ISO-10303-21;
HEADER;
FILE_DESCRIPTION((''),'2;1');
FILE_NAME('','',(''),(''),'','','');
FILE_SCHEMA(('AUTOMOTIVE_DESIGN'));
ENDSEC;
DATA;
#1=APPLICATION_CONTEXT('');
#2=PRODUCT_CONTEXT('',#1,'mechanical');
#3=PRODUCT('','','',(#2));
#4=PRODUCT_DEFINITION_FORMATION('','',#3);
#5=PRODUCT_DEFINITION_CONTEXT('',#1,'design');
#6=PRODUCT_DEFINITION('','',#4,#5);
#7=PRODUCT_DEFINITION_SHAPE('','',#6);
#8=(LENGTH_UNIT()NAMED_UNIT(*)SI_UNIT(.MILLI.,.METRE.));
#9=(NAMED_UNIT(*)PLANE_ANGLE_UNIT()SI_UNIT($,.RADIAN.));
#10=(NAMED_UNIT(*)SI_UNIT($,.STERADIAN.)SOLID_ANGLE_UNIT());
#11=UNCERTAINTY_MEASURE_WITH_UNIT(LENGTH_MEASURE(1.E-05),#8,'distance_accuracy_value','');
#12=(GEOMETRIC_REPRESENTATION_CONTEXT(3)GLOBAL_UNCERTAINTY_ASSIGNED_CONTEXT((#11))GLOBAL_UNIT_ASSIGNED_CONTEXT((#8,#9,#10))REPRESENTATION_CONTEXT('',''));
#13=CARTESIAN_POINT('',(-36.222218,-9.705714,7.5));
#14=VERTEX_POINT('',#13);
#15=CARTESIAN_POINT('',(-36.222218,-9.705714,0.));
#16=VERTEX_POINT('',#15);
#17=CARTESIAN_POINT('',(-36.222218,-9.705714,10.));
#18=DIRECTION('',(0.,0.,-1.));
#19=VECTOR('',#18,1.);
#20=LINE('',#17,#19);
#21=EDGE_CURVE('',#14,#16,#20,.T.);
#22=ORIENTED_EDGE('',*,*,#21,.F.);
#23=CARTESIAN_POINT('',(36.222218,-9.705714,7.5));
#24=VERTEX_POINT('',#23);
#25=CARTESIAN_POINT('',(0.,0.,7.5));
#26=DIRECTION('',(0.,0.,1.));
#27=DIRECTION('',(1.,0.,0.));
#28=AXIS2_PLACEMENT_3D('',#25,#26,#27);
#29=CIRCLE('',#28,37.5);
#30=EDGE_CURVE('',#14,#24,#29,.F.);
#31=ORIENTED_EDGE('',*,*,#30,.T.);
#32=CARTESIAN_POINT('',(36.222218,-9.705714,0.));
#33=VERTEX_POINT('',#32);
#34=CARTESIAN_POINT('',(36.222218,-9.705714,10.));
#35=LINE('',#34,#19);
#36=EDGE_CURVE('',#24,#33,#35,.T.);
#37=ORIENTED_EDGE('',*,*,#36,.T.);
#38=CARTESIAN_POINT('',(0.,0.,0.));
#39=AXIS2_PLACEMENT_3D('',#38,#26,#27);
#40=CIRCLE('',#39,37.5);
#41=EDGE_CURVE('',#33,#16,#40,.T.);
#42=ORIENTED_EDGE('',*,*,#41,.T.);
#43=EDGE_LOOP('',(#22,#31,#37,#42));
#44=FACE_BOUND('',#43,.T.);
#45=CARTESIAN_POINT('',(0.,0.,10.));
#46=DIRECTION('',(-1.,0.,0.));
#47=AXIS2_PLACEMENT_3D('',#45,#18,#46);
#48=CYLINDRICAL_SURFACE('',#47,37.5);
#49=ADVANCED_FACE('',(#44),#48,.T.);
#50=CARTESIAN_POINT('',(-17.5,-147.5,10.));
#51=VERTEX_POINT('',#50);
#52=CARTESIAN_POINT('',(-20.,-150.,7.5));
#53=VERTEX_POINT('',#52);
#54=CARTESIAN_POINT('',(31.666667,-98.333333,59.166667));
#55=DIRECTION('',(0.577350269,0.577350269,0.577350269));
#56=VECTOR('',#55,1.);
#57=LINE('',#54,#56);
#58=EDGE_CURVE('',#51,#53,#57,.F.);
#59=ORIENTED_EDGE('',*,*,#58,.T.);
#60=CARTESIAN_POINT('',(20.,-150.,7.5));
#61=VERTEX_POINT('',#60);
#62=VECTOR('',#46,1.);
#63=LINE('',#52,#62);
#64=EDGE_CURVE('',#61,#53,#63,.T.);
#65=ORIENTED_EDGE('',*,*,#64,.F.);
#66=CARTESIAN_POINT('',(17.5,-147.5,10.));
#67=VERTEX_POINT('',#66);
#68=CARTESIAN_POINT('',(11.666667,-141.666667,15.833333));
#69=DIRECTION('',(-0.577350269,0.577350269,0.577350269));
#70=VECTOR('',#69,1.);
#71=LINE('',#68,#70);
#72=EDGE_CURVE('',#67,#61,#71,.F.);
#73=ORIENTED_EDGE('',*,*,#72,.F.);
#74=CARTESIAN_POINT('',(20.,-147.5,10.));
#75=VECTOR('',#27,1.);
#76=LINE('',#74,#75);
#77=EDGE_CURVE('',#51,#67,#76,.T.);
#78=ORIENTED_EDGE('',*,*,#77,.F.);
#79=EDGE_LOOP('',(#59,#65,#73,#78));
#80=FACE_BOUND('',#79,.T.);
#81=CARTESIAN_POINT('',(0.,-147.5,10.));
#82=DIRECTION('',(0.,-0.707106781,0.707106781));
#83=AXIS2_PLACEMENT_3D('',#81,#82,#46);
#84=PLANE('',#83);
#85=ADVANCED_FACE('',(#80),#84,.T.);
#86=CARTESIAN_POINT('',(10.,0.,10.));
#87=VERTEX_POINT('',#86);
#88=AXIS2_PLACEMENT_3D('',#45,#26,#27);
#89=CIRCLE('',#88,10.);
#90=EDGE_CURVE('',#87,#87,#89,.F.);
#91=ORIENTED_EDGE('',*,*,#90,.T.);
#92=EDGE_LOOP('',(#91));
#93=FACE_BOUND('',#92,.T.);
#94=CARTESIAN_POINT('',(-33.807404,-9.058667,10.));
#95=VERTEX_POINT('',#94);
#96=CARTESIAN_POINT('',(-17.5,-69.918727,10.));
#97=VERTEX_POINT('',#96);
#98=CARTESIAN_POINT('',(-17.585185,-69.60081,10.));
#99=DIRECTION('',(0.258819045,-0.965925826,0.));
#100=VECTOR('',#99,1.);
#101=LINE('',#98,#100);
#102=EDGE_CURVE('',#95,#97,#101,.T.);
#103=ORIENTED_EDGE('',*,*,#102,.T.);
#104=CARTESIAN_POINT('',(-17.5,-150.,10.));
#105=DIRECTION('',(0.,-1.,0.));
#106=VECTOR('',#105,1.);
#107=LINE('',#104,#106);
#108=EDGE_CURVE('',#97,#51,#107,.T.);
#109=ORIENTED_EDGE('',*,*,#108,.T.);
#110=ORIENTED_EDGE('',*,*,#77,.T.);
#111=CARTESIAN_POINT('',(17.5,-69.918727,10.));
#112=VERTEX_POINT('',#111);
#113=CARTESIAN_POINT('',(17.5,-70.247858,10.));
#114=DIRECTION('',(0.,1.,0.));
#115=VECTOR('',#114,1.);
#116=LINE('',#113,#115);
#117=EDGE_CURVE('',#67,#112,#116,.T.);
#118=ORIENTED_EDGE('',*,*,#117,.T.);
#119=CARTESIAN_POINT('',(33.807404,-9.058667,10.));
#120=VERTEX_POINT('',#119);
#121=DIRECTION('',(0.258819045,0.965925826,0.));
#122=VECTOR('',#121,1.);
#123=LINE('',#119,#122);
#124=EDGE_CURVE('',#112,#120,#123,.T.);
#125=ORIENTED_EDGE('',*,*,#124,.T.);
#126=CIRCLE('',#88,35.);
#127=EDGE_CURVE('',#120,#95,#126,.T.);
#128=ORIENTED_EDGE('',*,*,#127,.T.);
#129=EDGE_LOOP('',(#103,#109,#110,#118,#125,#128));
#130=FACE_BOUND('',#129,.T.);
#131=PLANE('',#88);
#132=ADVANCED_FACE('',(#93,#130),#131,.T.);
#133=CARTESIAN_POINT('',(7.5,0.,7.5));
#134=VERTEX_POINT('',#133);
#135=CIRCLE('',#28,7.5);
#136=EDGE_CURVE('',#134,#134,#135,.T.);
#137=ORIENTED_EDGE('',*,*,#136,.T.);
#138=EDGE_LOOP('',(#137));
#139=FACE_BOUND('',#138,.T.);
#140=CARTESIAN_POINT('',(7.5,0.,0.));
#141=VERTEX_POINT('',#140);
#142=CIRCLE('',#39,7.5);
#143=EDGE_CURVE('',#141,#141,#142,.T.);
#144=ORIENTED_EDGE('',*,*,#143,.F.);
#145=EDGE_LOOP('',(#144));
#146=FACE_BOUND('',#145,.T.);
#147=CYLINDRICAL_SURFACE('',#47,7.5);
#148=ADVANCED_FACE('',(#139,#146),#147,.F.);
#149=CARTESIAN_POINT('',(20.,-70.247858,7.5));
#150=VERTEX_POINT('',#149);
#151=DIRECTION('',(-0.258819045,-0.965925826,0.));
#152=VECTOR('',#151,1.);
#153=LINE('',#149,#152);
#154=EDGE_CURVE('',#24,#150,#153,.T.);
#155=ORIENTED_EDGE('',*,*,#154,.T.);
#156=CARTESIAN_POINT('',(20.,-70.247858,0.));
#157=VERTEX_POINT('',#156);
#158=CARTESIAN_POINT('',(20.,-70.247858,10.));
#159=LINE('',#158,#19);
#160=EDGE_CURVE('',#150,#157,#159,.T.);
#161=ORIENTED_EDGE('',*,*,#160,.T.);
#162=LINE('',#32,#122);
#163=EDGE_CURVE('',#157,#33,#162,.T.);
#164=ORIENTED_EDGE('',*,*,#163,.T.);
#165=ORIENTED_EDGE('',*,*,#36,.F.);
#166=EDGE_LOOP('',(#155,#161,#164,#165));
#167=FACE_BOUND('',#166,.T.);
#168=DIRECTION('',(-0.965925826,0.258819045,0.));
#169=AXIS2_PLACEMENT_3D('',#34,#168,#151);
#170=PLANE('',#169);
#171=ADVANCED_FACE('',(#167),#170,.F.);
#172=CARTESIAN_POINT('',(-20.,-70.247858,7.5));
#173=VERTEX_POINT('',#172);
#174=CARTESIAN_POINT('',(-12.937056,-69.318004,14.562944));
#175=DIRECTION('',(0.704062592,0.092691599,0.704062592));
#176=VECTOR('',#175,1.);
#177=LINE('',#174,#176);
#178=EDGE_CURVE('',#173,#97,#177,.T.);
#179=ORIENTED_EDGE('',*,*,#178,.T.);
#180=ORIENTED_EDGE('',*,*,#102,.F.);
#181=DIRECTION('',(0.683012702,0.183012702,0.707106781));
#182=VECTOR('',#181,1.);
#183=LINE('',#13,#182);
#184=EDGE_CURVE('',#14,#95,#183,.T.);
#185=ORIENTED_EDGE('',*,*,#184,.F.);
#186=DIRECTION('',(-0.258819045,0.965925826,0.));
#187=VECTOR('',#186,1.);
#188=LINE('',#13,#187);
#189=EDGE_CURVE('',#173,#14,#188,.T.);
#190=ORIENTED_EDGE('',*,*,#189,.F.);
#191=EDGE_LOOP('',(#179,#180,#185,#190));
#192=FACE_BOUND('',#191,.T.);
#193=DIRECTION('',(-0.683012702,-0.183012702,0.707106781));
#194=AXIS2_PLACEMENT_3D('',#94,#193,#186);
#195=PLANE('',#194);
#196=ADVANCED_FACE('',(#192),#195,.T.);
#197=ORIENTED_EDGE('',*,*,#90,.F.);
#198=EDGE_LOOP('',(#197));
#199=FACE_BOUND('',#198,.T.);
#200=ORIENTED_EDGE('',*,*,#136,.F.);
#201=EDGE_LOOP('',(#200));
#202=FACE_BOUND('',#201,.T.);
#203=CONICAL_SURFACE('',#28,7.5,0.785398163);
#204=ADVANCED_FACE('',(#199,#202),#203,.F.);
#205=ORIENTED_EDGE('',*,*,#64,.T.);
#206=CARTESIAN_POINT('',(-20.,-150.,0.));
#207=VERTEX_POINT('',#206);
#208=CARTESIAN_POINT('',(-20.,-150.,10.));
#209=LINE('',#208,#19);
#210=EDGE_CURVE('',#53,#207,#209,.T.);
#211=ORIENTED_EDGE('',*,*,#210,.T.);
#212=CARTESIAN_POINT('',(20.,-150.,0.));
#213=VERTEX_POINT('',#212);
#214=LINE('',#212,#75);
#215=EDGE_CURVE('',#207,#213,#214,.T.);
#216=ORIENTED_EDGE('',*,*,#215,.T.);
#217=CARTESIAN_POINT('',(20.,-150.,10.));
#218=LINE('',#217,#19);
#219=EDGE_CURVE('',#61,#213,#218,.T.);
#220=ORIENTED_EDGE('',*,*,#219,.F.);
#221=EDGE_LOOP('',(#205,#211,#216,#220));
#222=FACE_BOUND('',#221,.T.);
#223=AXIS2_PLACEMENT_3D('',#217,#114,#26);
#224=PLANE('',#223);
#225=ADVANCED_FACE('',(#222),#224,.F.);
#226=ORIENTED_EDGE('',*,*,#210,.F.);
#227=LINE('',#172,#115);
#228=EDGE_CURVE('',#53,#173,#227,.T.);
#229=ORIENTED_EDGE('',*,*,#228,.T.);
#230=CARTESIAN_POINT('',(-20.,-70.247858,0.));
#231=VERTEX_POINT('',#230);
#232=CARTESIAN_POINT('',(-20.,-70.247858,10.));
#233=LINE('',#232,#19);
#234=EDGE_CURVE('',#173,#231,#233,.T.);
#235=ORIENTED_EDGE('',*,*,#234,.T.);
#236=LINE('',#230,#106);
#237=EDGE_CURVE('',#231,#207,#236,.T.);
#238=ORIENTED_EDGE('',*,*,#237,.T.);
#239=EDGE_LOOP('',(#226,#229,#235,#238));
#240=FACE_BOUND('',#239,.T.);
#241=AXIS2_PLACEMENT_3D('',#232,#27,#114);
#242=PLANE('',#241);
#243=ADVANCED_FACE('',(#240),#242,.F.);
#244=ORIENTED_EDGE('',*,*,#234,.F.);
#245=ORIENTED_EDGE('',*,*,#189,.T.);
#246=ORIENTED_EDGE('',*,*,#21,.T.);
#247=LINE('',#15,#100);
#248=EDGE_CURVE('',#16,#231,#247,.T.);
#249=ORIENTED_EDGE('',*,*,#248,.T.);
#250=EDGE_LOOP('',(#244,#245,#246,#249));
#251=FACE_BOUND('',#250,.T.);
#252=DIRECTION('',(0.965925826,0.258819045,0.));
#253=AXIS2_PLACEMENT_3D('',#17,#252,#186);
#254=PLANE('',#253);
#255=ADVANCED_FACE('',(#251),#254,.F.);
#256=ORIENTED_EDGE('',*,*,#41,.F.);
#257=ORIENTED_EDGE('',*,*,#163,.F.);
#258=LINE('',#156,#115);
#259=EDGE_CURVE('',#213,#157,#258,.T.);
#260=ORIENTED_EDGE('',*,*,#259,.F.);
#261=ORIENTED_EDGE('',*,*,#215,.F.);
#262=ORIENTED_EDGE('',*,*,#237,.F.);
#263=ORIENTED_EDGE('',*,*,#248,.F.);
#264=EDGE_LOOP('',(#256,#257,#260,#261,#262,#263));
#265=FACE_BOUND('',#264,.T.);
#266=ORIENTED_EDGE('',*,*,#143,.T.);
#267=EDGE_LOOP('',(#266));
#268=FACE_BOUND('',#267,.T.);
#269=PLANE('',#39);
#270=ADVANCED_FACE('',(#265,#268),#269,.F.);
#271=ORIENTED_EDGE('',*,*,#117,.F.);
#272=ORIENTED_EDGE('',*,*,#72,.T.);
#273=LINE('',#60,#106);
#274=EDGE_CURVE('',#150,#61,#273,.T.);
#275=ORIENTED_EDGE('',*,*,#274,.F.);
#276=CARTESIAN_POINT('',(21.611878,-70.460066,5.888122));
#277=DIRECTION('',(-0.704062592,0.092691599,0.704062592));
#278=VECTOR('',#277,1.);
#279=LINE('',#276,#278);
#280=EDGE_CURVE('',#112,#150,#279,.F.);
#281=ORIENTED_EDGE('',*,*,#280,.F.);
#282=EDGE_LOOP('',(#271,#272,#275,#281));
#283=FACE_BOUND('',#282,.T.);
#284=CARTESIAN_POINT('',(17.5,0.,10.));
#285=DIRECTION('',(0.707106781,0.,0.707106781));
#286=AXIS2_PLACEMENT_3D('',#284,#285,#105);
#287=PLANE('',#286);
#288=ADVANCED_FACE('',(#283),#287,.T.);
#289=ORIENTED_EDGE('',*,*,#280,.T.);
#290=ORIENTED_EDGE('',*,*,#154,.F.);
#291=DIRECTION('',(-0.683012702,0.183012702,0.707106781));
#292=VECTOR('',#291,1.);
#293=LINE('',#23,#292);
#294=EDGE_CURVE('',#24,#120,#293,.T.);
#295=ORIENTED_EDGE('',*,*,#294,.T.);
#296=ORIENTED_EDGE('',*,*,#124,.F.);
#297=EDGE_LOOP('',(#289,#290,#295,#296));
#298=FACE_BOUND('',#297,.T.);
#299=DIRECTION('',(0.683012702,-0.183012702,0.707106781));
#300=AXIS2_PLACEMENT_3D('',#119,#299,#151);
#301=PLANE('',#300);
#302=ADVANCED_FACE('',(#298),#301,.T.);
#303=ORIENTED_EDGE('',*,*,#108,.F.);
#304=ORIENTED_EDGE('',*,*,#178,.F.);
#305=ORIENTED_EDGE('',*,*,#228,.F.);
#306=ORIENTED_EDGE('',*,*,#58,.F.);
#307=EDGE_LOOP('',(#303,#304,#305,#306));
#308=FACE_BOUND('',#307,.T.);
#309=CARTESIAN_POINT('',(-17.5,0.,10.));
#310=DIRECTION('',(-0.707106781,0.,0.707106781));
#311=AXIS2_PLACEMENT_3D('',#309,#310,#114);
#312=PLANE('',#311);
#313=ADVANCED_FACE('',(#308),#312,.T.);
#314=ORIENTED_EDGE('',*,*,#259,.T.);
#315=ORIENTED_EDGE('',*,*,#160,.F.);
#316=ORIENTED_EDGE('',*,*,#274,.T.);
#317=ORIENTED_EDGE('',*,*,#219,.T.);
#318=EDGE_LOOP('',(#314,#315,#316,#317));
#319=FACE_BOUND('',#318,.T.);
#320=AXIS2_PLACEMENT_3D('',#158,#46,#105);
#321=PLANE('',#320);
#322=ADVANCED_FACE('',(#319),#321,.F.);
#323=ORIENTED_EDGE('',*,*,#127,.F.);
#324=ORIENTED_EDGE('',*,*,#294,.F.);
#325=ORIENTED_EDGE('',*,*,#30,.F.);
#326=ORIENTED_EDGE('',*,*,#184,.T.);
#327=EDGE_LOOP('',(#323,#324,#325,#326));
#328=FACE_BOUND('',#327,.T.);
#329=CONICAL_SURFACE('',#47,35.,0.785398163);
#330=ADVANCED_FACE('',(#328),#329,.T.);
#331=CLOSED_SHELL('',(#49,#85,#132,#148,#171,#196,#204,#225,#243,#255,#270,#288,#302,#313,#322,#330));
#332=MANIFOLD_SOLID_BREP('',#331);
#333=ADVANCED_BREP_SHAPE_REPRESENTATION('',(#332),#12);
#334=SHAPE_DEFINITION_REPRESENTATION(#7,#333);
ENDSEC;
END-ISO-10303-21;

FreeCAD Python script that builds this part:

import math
import FreeCAD as App
import Part
import Sketcher
from FreeCAD import Vector
Q = App.Units.Quantity


def edges_at(feature, points):
    """Names of the edges that pass closest to the given points."""
    edges = feature.Shape.Edges
    near = lambda p: min(range(len(edges)), key=lambda i: edges[i].distToShape(Part.Vertex(*p))[0])
    return sorted({f"Edge{near(p) + 1}" for p in points})

doc = App.newDocument("Part")
params = doc.addObject("Spreadsheet::Sheet", "Params")
for row, (alias, value) in enumerate([
    ("sketch1_diameter", "15 mm"),
    ("sketch1_radius", "37.5 mm"),
    ("sketch1_width", "40 mm"),
    ("pad1_length", "10 mm"),
    ("chamfer_size", "2.5 mm"),
], start=1):
    params.set(f"A{row}", alias)
    params.set(f"B{row}", "=" + value)
    params.setAlias(f"B{row}", alias)

body = doc.addObject("PartDesign::Body", "Body")

# Sketch on XY plane
sketch1 = body.newObject("Sketcher::SketchObject", "Sketch")
sketch1.AttachmentSupport = (doc.getObject("XY_Plane"), [""])
sketch1.MapMode = "FlatFace"
sketch1.addGeometry([
    Part.LineSegment(Vector(20, -70, 0), Vector(36, -10, 0)),  # 0
    Part.ArcOfCircle(Part.Circle(Vector(0, 0, 0), Vector(0, 0, 1), 38), math.radians(-15), math.radians(195)),  # 1
    Part.LineSegment(Vector(-36, -10, 0), Vector(-20, -70, 0)),  # 2
    Part.LineSegment(Vector(-20, -70, 0), Vector(-20, -150, 0)),  # 3
    Part.LineSegment(Vector(-20, -150, 0), Vector(20, -150, 0)),  # 4
    Part.LineSegment(Vector(20, -150, 0), Vector(20, -70, 0)),  # 5
    Part.Circle(Vector(0, 0, 0), Vector(0, 0, 1), 8),  # 6
], False)
sketch1.addConstraint([
    Sketcher.Constraint("Tangent", 0, 2, 1, 1),
    Sketcher.Constraint("Tangent", 1, 2, 2, 1),
    Sketcher.Constraint("Coincident", 2, 2, 3, 1),
    Sketcher.Constraint("Coincident", 3, 2, 4, 1),
    Sketcher.Constraint("Coincident", 4, 2, 5, 1),
    Sketcher.Constraint("Coincident", 5, 2, 0, 1),
    Sketcher.Constraint("Vertical", 3),
    Sketcher.Constraint("Horizontal", 4),
    Sketcher.Constraint("Vertical", 5),
    Sketcher.Constraint("Coincident", 1, 3, -1, 1),
    Sketcher.Constraint("Coincident", 6, 3, -1, 1),
    Sketcher.Constraint("Symmetric", 2, 2, 5, 2, -2),
    Sketcher.Constraint("Diameter", 6, Q("15 mm")),
    Sketcher.Constraint("Radius", 1, Q("37.5 mm")),
    Sketcher.Constraint("DistanceX", 4, 1, 4, 2, Q("40 mm")),
    Sketcher.Constraint("Angle", 0, Q("75 deg")),
    Sketcher.Constraint("DistanceY", 3, 2, -1, 1, Q("150 mm")),
])
sketch1.setExpression("Constraints[12]", "Params.sketch1_diameter")
sketch1.setExpression("Constraints[13]", "Params.sketch1_radius")
sketch1.setExpression("Constraints[14]", "Params.sketch1_width")
pad1 = body.newObject("PartDesign::Pad", "Pad")
pad1.Profile = sketch1
pad1.setExpression("Length", "Params.pad1_length")
doc.recompute()

chamfer = body.newObject("PartDesign::Chamfer", "Chamfer")
chamfer.Base = (pad1, edges_at(pad1, [
    (-20, -110.124, 10),
    (0, -150, 10),
    (-7.5, 0, 10),
    (20, -110.124, 10),
    (28.111, -39.977, 10),
    (0, 37.5, 10),
    (-28.111, -39.977, 10),
]))
chamfer.setExpression("Size", "Params.chamfer_size")

doc.recompute()
